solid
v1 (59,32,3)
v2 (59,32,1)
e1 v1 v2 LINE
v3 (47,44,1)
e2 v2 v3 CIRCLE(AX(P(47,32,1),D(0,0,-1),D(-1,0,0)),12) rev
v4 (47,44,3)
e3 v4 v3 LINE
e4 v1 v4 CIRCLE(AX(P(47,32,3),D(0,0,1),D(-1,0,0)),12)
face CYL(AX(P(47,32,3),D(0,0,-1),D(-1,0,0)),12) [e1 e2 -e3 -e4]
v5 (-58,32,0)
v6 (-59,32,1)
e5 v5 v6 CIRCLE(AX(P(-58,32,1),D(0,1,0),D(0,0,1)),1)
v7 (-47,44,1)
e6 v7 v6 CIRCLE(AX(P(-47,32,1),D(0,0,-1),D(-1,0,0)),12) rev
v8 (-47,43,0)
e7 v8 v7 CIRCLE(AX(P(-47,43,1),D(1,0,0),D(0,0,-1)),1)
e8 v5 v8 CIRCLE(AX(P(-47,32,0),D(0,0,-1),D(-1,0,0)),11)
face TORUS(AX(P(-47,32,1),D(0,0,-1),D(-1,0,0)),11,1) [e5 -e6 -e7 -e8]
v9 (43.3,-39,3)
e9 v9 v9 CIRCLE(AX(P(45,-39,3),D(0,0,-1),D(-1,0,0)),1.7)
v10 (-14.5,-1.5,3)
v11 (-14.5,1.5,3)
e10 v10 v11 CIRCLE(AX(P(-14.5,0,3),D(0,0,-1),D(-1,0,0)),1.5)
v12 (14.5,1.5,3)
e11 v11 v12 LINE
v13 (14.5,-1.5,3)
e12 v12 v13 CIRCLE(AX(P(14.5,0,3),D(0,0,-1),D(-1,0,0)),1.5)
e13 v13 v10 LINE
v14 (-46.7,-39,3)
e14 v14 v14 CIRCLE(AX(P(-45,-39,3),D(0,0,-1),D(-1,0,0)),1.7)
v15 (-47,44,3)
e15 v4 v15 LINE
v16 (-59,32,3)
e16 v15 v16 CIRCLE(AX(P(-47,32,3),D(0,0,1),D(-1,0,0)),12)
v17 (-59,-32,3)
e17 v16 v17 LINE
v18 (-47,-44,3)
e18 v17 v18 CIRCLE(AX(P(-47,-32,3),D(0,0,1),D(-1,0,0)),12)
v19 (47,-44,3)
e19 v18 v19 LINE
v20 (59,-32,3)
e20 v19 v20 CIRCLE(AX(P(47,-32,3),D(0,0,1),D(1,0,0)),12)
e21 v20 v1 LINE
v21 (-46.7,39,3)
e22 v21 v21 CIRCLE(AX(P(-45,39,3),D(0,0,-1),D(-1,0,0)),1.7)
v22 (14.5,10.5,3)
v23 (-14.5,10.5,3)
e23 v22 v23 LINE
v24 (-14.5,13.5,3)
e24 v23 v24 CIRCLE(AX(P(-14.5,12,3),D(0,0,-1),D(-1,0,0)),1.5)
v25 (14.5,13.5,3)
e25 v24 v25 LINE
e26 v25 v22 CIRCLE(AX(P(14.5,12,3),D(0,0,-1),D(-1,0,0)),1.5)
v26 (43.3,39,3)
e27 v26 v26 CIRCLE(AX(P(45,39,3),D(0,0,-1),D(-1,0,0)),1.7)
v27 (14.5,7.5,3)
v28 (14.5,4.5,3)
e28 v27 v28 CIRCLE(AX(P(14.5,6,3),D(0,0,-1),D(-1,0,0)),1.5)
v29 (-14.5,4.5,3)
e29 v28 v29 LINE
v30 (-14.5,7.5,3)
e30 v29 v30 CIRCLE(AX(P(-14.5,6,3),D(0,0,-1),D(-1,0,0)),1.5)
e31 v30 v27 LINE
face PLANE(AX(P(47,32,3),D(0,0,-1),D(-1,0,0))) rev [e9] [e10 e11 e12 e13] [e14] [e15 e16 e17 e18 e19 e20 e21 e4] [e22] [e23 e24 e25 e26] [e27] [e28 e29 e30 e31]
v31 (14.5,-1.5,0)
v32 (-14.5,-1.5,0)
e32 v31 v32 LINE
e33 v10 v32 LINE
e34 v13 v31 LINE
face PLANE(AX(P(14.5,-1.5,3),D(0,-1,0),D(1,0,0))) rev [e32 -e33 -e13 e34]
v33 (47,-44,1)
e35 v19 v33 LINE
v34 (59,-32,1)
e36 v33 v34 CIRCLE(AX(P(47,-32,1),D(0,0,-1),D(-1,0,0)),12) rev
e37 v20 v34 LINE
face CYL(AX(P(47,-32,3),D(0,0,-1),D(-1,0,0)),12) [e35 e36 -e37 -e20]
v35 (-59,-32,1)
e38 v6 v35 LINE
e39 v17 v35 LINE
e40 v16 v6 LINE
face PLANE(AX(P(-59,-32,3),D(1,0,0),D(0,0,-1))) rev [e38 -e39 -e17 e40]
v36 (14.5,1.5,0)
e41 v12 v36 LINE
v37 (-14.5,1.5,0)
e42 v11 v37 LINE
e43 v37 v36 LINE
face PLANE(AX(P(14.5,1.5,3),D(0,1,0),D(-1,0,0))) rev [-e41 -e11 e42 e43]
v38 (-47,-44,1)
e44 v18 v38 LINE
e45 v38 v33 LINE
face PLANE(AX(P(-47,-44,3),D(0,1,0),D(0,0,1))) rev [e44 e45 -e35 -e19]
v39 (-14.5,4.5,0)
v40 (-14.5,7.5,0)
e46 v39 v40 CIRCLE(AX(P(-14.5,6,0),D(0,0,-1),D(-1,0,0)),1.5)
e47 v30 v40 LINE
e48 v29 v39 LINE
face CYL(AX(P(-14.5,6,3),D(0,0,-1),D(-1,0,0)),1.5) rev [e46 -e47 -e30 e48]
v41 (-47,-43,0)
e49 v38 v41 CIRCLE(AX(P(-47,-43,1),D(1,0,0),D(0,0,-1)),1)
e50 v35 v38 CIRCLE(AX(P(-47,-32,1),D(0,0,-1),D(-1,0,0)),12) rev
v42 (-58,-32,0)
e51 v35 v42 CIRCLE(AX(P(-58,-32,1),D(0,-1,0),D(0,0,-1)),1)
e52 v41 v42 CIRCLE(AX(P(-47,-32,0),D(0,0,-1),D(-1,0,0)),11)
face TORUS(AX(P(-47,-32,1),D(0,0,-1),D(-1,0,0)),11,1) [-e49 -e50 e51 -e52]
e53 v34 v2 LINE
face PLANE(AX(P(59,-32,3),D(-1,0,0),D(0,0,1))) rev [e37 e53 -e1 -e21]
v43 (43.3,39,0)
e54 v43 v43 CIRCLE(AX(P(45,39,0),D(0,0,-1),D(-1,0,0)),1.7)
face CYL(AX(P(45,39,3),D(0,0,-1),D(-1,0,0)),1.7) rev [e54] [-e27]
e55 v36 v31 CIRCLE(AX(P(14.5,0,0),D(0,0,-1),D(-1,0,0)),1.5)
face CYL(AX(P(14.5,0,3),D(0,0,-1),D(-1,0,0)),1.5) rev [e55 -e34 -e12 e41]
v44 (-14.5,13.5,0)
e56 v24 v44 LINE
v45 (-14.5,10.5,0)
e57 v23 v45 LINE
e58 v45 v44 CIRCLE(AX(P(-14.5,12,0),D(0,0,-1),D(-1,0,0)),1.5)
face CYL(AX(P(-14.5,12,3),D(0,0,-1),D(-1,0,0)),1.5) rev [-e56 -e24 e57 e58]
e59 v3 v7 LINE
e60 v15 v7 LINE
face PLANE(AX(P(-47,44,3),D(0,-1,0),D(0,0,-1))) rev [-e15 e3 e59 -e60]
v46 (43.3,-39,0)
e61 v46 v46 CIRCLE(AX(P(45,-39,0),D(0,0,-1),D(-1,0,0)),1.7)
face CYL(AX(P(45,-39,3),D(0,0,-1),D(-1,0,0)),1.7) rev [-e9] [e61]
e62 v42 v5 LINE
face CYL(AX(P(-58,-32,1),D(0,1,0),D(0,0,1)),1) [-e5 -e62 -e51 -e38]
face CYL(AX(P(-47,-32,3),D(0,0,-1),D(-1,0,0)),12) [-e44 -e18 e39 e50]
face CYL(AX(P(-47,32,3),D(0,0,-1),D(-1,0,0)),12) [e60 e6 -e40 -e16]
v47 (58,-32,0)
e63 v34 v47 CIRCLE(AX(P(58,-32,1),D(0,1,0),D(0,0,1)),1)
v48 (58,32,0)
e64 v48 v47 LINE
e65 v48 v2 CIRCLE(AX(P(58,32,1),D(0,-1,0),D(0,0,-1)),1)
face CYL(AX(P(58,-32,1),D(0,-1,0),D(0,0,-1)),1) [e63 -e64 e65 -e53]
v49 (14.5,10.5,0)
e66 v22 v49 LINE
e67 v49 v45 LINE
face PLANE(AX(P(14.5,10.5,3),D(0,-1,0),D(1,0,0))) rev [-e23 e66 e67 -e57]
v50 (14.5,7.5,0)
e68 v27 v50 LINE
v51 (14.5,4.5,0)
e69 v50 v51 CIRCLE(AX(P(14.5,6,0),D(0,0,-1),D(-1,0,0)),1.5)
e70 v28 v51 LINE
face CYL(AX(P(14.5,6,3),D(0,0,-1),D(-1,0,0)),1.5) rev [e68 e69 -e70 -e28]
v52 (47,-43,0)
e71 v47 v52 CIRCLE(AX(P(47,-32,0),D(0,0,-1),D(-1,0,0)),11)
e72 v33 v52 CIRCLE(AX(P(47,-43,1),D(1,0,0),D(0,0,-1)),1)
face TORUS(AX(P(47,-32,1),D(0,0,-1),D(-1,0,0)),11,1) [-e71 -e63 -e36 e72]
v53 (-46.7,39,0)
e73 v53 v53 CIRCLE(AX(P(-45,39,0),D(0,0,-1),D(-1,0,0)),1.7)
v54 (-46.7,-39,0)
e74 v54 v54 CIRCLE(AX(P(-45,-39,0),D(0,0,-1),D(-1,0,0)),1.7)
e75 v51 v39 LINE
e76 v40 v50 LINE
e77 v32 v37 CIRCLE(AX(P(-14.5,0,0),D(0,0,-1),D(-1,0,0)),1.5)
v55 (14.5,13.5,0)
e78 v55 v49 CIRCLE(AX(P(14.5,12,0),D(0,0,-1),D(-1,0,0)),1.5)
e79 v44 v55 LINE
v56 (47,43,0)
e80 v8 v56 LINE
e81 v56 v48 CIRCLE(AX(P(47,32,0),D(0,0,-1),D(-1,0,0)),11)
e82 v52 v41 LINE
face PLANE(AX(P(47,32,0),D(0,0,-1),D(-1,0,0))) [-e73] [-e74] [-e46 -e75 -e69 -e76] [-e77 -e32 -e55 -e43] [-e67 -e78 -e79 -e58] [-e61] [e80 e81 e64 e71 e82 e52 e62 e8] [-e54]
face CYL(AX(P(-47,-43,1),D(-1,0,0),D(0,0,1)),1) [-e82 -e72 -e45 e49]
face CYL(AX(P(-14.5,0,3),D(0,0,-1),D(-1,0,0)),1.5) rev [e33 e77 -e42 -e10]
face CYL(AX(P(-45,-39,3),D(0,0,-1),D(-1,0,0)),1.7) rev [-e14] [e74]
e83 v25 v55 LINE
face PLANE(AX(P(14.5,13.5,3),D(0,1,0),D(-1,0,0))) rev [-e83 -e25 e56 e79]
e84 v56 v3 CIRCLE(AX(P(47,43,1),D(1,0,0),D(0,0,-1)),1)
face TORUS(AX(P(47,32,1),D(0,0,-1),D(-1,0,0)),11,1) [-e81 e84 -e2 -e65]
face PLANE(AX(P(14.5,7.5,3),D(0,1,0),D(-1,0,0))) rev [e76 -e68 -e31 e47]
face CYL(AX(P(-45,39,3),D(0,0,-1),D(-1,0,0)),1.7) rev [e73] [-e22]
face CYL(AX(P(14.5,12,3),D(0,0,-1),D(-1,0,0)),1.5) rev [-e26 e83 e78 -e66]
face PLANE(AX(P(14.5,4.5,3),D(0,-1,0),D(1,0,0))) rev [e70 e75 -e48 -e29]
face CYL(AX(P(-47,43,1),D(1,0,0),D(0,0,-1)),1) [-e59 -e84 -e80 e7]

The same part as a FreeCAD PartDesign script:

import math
import FreeCAD as App
import Part
import Sketcher

V = App.Vector


def edges_at(feature, points):
    """Names of the edges that pass closest to the given points."""
    edges = feature.Shape.Edges
    near = lambda p: min(range(len(edges)), key=lambda i: edges[i].distToShape(Part.Vertex(*p))[0])
    return sorted({f"Edge{near(p) + 1}" for p in points})

doc = App.newDocument("Part")
body = doc.addObject("PartDesign::Body", "Body")

sketch1 = doc.addObject("Sketcher::SketchObject", "Sketch")
body.addObject(sketch1)
sketch1.AttachmentSupport = (doc.XY_Plane, [""])
sketch1.MapMode = "FlatFace"
sketch1.addGeometry([
    Part.LineSegment(V(-47, -44, 0), V(47, -44, 0)),
    Part.ArcOfCircle(Part.Circle(V(47, -32, 0), V(0, 0, 1), 12), math.radians(-90), math.radians(0)),
    Part.LineSegment(V(59, -32, 0), V(59, 32, 0)),
    Part.ArcOfCircle(Part.Circle(V(47, 32, 0), V(0, 0, 1), 12), math.radians(0), math.radians(90)),
    Part.LineSegment(V(47, 44, 0), V(-47, 44, 0)),
    Part.ArcOfCircle(Part.Circle(V(-47, 32, 0), V(0, 0, 1), 12), math.radians(90), math.radians(180)),
    Part.LineSegment(V(-59, 32, 0), V(-59, -32, 0)),
    Part.ArcOfCircle(Part.Circle(V(-47, -32, 0), V(0, 0, 1), 12), math.radians(-180), math.radians(-90)),
], False)
sketch1.addConstraint([
    Sketcher.Constraint("Tangent", 0, 2, 1, 1),
    Sketcher.Constraint("Tangent", 1, 2, 2, 1),
    Sketcher.Constraint("Tangent", 2, 2, 3, 1),
    Sketcher.Constraint("Tangent", 3, 2, 4, 1),
    Sketcher.Constraint("Tangent", 4, 2, 5, 1),
    Sketcher.Constraint("Tangent", 5, 2, 6, 1),
    Sketcher.Constraint("Tangent", 6, 2, 7, 1),
    Sketcher.Constraint("Tangent", 7, 2, 0, 1),
    Sketcher.Constraint("Horizontal", 0),
    Sketcher.Constraint("Vertical", 2),
    Sketcher.Constraint("Horizontal", 4),
    Sketcher.Constraint("Vertical", 6),
    Sketcher.Constraint("Equal", 1, 3),
    Sketcher.Constraint("Equal", 3, 5),
    Sketcher.Constraint("Equal", 5, 7),
    Sketcher.Constraint("Symmetric", 1, 3, 5, 3, -1, 1),
    Sketcher.Constraint("Radius", 1, 12.0),
    Sketcher.Constraint("DistanceX", 0, 1, 0, 2, 94.0),
    Sketcher.Constraint("DistanceY", 2, 1, 2, 2, 64.0),
])
pad1 = doc.addObject("PartDesign::Pad", "Pad")
body.addObject(pad1)
pad1.Profile = sketch1
pad1.Length = 3
doc.recompute()

fillet = doc.addObject("PartDesign::Fillet", "Fillet")
body.addObject(fillet)
fillet.Base = (pad1, edges_at(pad1, [
    (-59, 0, 0),
    (-55.485, 40.485, 0),
    (0, 44, 0),
    (55.485, 40.485, 0),
    (59, 0, 0),
    (55.485, -40.485, 0),
    (0, -44, 0),
    (-55.485, -40.485, 0),
]))
fillet.Radius = 1

sketch2 = doc.addObject("Sketcher::SketchObject", "Sketch001")
body.addObject(sketch2)
sketch2.AttachmentSupport = (doc.XY_Plane, [""])
sketch2.MapMode = "FlatFace"
sketch2.addGeometry([
    Part.Circle(V(45, 39, 0), V(0, 0, 1), 1.7),
    Part.Circle(V(45, -39, 0), V(0, 0, 1), 1.7),
    Part.Circle(V(-45, -39, 0), V(0, 0, 1), 1.7),
    Part.Circle(V(-45, 39, 0), V(0, 0, 1), 1.7),
], False)
sketch2.addConstraint([
    Sketcher.Constraint("Equal", 0, 1),
    Sketcher.Constraint("Equal", 1, 2),
    Sketcher.Constraint("Equal", 2, 3),
    Sketcher.Constraint("Symmetric", 0, 3, 2, 3, -1, 1),
    Sketcher.Constraint("Symmetric", 1, 3, 3, 3, -1, 1),
    Sketcher.Constraint("Symmetric", 1, 3, 2, 3, -2),
    Sketcher.Constraint("Diameter", 0, 3.4),
    Sketcher.Constraint("DistanceX", -1, 1, 0, 3, 45.0),
    Sketcher.Constraint("DistanceY", -1, 1, 0, 3, 39.0),
])
pocket1 = doc.addObject("PartDesign::Pocket", "Pocket")
body.addObject(pocket1)
pocket1.Profile = sketch2
pocket1.Type = "ThroughAll"
pocket1.Reversed = True

sketch3 = doc.addObject("Sketcher::SketchObject", "Sketch002")
body.addObject(sketch3)
sketch3.AttachmentSupport = (doc.XY_Plane, [""])
sketch3.MapMode = "FlatFace"
sketch3.addGeometry([
    Part.LineSegment(V(-14.5, 1.5, 0), V(14.5, 1.5, 0)),
    Part.ArcOfCircle(Part.Circle(V(14.5, 0, 0), V(0, 0, 1), 1.5), math.radians(-90), math.radians(90)),
    Part.LineSegment(V(14.5, -1.5, 0), V(-14.5, -1.5, 0)),
    Part.ArcOfCircle(Part.Circle(V(-14.5, 0, 0), V(0, 0, 1), 1.5), math.radians(90), math.radians(270)),
    Part.LineSegment(V(-14.5, 7.5, 0), V(14.5, 7.5, 0)),
    Part.ArcOfCircle(Part.Circle(V(14.5, 6, 0), V(0, 0, 1), 1.5), math.radians(-90), math.radians(90)),
    Part.LineSegment(V(14.5, 4.5, 0), V(-14.5, 4.5, 0)),
    Part.ArcOfCircle(Part.Circle(V(-14.5, 6, 0), V(0, 0, 1), 1.5), math.radians(90), math.radians(270)),
    Part.LineSegment(V(-14.5, 13.5, 0), V(14.5, 13.5, 0)),
    Part.ArcOfCircle(Part.Circle(V(14.5, 12, 0), V(0, 0, 1), 1.5), math.radians(-90), math.radians(90)),
    Part.LineSegment(V(14.5, 10.5, 0), V(-14.5, 10.5, 0)),
    Part.ArcOfCircle(Part.Circle(V(-14.5, 12, 0), V(0, 0, 1), 1.5), math.radians(90), math.radians(270)),
], False)
sketch3.addConstraint([
    Sketcher.Constraint("Tangent", 0, 2, 1, 2),
    Sketcher.Constraint("Tangent", 1, 1, 2, 1),
    Sketcher.Constraint("Tangent", 2, 2, 3, 2),
    Sketcher.Constraint("Tangent", 3, 1, 0, 1),
    Sketcher.Constraint("Tangent", 4, 2, 5, 2),
    Sketcher.Constraint("Tangent", 5, 1, 6, 1),
    Sketcher.Constraint("Tangent", 6, 2, 7, 2),
    Sketcher.Constraint("Tangent", 7, 1, 4, 1),
    Sketcher.Constraint("Tangent", 8, 2, 9, 2),
    Sketcher.Constraint("Tangent", 9, 1, 10, 1),
    Sketcher.Constraint("Tangent", 10, 2, 11, 2),
    Sketcher.Constraint("Tangent", 11, 1, 8, 1),
    Sketcher.Constraint("Horizontal", 0),
    Sketcher.Constraint("Horizontal", 2),
    Sketcher.Constraint("Horizontal", 4),
    Sketcher.Constraint("Horizontal", 6),
    Sketcher.Constraint("Horizontal", 8),
    Sketcher.Constraint("Horizontal", 10),
    Sketcher.Constraint("Equal", 3, 5),
    Sketcher.Constraint("Equal", 7, 9),
    Sketcher.Constraint("Symmetric", 1, 3, 3, 3, -1, 1),
    Sketcher.Constraint("Vertical", 1, 3, 5, 3),
    Sketcher.Constraint("Vertical", 3, 3, 7, 3),
    Sketcher.Constraint("Vertical", 5, 3, 9, 3),
    Sketcher.Constraint("Vertical", 7, 3, 11, 3),
    Sketcher.Constraint("Radius", 1, 1.5),
    Sketcher.Constraint("DistanceX", 0, 1, 0, 2, 29.0),
    Sketcher.Constraint("DistanceY", -1, 1, 5, 3, 6.0),
    Sketcher.Constraint("DistanceY", -1, 1, 9, 3, 12.0),
])
pocket2 = doc.addObject("PartDesign::Pocket", "Pocket001")
body.addObject(pocket2)
pocket2.Profile = sketch3
pocket2.Type = "ThroughAll"
pocket2.Reversed = True

doc.recompute()
